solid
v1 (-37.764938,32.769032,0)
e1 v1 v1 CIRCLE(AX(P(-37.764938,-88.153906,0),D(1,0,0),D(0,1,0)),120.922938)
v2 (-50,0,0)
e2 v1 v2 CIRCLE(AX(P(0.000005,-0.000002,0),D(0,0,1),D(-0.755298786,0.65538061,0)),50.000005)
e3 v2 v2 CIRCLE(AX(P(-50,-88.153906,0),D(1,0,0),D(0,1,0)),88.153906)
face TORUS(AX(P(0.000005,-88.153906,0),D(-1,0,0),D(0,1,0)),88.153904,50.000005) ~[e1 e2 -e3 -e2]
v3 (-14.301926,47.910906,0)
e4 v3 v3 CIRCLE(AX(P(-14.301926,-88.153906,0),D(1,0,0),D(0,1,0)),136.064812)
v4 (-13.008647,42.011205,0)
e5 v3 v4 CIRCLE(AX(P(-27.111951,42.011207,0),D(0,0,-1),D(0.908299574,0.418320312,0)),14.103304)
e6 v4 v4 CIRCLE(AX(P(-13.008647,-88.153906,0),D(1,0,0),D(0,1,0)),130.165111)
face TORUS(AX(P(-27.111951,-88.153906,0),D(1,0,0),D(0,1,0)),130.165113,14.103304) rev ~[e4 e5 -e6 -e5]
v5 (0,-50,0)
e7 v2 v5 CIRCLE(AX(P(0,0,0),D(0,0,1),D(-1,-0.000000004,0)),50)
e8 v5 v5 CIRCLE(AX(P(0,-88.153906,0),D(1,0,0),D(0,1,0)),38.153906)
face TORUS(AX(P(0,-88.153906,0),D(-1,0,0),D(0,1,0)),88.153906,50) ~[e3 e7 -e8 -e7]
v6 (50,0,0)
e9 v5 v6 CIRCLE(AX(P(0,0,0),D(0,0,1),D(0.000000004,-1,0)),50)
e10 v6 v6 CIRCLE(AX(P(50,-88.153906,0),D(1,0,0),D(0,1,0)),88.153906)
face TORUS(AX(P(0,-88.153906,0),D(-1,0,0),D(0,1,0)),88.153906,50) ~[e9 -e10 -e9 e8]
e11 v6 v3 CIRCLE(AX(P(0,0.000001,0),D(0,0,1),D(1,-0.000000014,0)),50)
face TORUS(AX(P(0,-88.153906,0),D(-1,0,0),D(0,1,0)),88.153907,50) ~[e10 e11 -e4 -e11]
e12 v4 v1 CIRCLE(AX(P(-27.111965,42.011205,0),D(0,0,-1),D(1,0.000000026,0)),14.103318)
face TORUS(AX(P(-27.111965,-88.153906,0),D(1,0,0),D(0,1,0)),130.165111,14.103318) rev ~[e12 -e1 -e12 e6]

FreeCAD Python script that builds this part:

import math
import FreeCAD as App
import Part
import Sketcher
Q = App.Units.Quantity

doc = App.newDocument("Part")
body = doc.addObject("PartDesign::Body", "Body")

# Sketch on XY plane
sketch1 = body.newObject("Sketcher::SketchObject", "Sketch")
sketch1.AttachmentSupport = (doc.getObject("XY_Plane"), [""])
sketch1.MapMode = "FlatFace"
sketch1.addGeometry([
    Part.ArcOfCircle(Part.Circle(App.Vector(0, 0, 0), App.Vector(0, 0, 1), 50), math.radians(139), math.radians(180)),  # 0
    Part.ArcOfCircle(Part.Circle(App.Vector(0, 0, 0), App.Vector(0, 0, 1), 50), math.radians(-180), math.radians(-90)),  # 1
    Part.ArcOfCircle(Part.Circle(App.Vector(0, 0, 0), App.Vector(0, 0, 1), 50), math.radians(-90), math.radians(0)),  # 2
    Part.ArcOfCircle(Part.Circle(App.Vector(0, 0, 0), App.Vector(0, 0, 1), 50), math.radians(0), math.radians(107)),  # 3
    Part.ArcOfCircle(Part.Circle(App.Vector(-27, 42, 0), App.Vector(0, 0, 1), 14), math.radians(0), math.radians(25)),  # 4
    Part.ArcOfCircle(Part.Circle(App.Vector(-27, 42, 0), App.Vector(0, 0, 1), 14), math.radians(-139), math.radians(0)),  # 5
], False)
sketch1.addGeometry(Part.LineSegment(App.Vector(-50, -88, 0), App.Vector(50, -88, 0)), True)  # axis
sketch1.addConstraint([
    Sketcher.Constraint("Tangent", 0, 2, 1, 1),
    Sketcher.Constraint("Tangent", 1, 2, 2, 1),
    Sketcher.Constraint("Tangent", 2, 2, 3, 1),
    Sketcher.Constraint("Coincident", 3, 2, 4, 2),
    Sketcher.Constraint("Tangent", 4, 1, 5, 2),
    Sketcher.Constraint("Coincident", 5, 1, 0, 1),
    Sketcher.Constraint("Horizontal", 6),
    Sketcher.Constraint("Coincident", 0, 3, -1, 1),
    Sketcher.Constraint("Coincident", 2, 3, -1, 1),
    Sketcher.Constraint("Equal", 2, 3),
    Sketcher.Constraint("PointOnObject", 0, 2, -1),
    Sketcher.Constraint("PointOnObject", 1, 2, -2),
    Sketcher.Constraint("PointOnObject", 2, 2, -1),
    Sketcher.Constraint("Horizontal", 5, 3, 4, 1),
    Sketcher.Constraint("Vertical", 0, 2, 6, 1),
    Sketcher.Constraint("Vertical", 2, 2, 6, 2),
    Sketcher.Constraint("Radius", 1, Q("50 mm")),
    Sketcher.Constraint("Radius", 5, Q("14.103318 mm")),
    Sketcher.Constraint("Radius", 4, Q("14.103304 mm")),
    Sketcher.Constraint("DistanceY", 4, 3, 3, 2, Q("5.899699 mm")),
    Sketcher.Constraint("DistanceX", 4, 3, -1, 1, Q("27.111951 mm")),
    Sketcher.Constraint("DistanceY", 6, 1, -1, 1, Q("88.153906 mm")),
])
revolution = body.newObject("PartDesign::Revolution", "Revolution")
revolution.Profile = sketch1
revolution.ReferenceAxis = (sketch1, ["Axis0"])
revolution.Angle = 360

doc.recompute()
